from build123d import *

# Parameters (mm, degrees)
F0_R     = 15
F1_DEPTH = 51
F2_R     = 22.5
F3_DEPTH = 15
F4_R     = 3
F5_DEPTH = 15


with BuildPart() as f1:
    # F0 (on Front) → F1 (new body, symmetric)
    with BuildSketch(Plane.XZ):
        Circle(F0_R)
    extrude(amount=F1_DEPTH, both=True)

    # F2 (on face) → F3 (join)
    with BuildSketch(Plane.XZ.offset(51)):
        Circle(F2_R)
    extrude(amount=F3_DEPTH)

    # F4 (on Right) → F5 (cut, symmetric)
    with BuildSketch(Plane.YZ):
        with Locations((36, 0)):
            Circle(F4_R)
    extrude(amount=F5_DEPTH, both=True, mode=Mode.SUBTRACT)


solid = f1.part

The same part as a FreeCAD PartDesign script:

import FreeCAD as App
import Part
import Sketcher
from FreeCAD import Vector

doc = App.newDocument("Part")
params = doc.addObject("Spreadsheet::Sheet", "Params")
for row, (alias, value) in enumerate([
    ("sketch1_diameter", "30 mm"),
    ("pad1_length", "102 mm"),
    ("sketch2_diameter", "45 mm"),
    ("pad2_length", "15 mm"),
    ("sketch3_diameter", "6 mm"),
    ("pocket1_length", "30 mm"),
], start=1):
    params.set(f"A{row}", alias)
    params.set(f"B{row}", "=" + value)
    params.setAlias(f"B{row}", alias)

body = doc.addObject("PartDesign::Body", "Body")

# Sketch on XZ plane
sketch1 = doc.addObject("Sketcher::SketchObject", "Sketch")
body.addObject(sketch1)
sketch1.AttachmentSupport = (doc.XZ_Plane, [""])
sketch1.MapMode = "FlatFace"
sketch1.addGeometry(Part.Circle(Vector(0, 0, 0), Vector(0, 0, 1), 15), False)
sketch1.addConstraint(Sketcher.Constraint("Coincident", 0, 3, -1, 1))
sketch1.addConstraint(Sketcher.Constraint("Diameter", 0, 30.0))
sketch1.setExpression("Constraints[1]", "Params.sketch1_diameter")
pad1 = doc.addObject("PartDesign::Pad", "Pad")
body.addObject(pad1)
pad1.Profile = sketch1
pad1.setExpression("Length", "Params.pad1_length")
pad1.Midplane = True

# Sketch on XZ plane
sketch2 = doc.addObject("Sketcher::SketchObject", "Sketch001")
body.addObject(sketch2)
sketch2.AttachmentSupport = (doc.XZ_Plane, [""])
sketch2.MapMode = "FlatFace"
sketch2.AttachmentOffset = App.Placement(Vector(0, 0, 51), App.Rotation())
sketch2.addGeometry(Part.Circle(Vector(0, 0, 0), Vector(0, 0, 1), 22.5), False)
sketch2.addConstraint(Sketcher.Constraint("Coincident", 0, 3, -1, 1))
sketch2.addConstraint(Sketcher.Constraint("Diameter", 0, 45.0))
sketch2.setExpression("Constraints[1]", "Params.sketch2_diameter")
pad2 = doc.addObject("PartDesign::Pad", "Pad001")
body.addObject(pad2)
pad2.Profile = sketch2
pad2.setExpression("Length", "Params.pad2_length")

# Sketch on YZ plane
sketch3 = doc.addObject("Sketcher::SketchObject", "Sketch002")
body.addObject(sketch3)
sketch3.AttachmentSupport = (doc.YZ_Plane, [""])
sketch3.MapMode = "FlatFace"
sketch3.addGeometry(Part.Circle(Vector(36, 0, 0), Vector(0, 0, 1), 3), False)
sketch3.addConstraint(Sketcher.Constraint("PointOnObject", 0, 3, -1))
sketch3.addConstraint(Sketcher.Constraint("Diameter", 0, 6.0))
sketch3.addConstraint(Sketcher.Constraint("DistanceX", -1, 1, 0, 3, 36.0))
sketch3.setExpression("Constraints[1]", "Params.sketch3_diameter")
pocket1 = doc.addObject("PartDesign::Pocket", "Pocket")
body.addObject(pocket1)
pocket1.Profile = sketch3
pocket1.setExpression("Length", "Params.pocket1_length")
pocket1.Midplane = True

doc.recompute()
